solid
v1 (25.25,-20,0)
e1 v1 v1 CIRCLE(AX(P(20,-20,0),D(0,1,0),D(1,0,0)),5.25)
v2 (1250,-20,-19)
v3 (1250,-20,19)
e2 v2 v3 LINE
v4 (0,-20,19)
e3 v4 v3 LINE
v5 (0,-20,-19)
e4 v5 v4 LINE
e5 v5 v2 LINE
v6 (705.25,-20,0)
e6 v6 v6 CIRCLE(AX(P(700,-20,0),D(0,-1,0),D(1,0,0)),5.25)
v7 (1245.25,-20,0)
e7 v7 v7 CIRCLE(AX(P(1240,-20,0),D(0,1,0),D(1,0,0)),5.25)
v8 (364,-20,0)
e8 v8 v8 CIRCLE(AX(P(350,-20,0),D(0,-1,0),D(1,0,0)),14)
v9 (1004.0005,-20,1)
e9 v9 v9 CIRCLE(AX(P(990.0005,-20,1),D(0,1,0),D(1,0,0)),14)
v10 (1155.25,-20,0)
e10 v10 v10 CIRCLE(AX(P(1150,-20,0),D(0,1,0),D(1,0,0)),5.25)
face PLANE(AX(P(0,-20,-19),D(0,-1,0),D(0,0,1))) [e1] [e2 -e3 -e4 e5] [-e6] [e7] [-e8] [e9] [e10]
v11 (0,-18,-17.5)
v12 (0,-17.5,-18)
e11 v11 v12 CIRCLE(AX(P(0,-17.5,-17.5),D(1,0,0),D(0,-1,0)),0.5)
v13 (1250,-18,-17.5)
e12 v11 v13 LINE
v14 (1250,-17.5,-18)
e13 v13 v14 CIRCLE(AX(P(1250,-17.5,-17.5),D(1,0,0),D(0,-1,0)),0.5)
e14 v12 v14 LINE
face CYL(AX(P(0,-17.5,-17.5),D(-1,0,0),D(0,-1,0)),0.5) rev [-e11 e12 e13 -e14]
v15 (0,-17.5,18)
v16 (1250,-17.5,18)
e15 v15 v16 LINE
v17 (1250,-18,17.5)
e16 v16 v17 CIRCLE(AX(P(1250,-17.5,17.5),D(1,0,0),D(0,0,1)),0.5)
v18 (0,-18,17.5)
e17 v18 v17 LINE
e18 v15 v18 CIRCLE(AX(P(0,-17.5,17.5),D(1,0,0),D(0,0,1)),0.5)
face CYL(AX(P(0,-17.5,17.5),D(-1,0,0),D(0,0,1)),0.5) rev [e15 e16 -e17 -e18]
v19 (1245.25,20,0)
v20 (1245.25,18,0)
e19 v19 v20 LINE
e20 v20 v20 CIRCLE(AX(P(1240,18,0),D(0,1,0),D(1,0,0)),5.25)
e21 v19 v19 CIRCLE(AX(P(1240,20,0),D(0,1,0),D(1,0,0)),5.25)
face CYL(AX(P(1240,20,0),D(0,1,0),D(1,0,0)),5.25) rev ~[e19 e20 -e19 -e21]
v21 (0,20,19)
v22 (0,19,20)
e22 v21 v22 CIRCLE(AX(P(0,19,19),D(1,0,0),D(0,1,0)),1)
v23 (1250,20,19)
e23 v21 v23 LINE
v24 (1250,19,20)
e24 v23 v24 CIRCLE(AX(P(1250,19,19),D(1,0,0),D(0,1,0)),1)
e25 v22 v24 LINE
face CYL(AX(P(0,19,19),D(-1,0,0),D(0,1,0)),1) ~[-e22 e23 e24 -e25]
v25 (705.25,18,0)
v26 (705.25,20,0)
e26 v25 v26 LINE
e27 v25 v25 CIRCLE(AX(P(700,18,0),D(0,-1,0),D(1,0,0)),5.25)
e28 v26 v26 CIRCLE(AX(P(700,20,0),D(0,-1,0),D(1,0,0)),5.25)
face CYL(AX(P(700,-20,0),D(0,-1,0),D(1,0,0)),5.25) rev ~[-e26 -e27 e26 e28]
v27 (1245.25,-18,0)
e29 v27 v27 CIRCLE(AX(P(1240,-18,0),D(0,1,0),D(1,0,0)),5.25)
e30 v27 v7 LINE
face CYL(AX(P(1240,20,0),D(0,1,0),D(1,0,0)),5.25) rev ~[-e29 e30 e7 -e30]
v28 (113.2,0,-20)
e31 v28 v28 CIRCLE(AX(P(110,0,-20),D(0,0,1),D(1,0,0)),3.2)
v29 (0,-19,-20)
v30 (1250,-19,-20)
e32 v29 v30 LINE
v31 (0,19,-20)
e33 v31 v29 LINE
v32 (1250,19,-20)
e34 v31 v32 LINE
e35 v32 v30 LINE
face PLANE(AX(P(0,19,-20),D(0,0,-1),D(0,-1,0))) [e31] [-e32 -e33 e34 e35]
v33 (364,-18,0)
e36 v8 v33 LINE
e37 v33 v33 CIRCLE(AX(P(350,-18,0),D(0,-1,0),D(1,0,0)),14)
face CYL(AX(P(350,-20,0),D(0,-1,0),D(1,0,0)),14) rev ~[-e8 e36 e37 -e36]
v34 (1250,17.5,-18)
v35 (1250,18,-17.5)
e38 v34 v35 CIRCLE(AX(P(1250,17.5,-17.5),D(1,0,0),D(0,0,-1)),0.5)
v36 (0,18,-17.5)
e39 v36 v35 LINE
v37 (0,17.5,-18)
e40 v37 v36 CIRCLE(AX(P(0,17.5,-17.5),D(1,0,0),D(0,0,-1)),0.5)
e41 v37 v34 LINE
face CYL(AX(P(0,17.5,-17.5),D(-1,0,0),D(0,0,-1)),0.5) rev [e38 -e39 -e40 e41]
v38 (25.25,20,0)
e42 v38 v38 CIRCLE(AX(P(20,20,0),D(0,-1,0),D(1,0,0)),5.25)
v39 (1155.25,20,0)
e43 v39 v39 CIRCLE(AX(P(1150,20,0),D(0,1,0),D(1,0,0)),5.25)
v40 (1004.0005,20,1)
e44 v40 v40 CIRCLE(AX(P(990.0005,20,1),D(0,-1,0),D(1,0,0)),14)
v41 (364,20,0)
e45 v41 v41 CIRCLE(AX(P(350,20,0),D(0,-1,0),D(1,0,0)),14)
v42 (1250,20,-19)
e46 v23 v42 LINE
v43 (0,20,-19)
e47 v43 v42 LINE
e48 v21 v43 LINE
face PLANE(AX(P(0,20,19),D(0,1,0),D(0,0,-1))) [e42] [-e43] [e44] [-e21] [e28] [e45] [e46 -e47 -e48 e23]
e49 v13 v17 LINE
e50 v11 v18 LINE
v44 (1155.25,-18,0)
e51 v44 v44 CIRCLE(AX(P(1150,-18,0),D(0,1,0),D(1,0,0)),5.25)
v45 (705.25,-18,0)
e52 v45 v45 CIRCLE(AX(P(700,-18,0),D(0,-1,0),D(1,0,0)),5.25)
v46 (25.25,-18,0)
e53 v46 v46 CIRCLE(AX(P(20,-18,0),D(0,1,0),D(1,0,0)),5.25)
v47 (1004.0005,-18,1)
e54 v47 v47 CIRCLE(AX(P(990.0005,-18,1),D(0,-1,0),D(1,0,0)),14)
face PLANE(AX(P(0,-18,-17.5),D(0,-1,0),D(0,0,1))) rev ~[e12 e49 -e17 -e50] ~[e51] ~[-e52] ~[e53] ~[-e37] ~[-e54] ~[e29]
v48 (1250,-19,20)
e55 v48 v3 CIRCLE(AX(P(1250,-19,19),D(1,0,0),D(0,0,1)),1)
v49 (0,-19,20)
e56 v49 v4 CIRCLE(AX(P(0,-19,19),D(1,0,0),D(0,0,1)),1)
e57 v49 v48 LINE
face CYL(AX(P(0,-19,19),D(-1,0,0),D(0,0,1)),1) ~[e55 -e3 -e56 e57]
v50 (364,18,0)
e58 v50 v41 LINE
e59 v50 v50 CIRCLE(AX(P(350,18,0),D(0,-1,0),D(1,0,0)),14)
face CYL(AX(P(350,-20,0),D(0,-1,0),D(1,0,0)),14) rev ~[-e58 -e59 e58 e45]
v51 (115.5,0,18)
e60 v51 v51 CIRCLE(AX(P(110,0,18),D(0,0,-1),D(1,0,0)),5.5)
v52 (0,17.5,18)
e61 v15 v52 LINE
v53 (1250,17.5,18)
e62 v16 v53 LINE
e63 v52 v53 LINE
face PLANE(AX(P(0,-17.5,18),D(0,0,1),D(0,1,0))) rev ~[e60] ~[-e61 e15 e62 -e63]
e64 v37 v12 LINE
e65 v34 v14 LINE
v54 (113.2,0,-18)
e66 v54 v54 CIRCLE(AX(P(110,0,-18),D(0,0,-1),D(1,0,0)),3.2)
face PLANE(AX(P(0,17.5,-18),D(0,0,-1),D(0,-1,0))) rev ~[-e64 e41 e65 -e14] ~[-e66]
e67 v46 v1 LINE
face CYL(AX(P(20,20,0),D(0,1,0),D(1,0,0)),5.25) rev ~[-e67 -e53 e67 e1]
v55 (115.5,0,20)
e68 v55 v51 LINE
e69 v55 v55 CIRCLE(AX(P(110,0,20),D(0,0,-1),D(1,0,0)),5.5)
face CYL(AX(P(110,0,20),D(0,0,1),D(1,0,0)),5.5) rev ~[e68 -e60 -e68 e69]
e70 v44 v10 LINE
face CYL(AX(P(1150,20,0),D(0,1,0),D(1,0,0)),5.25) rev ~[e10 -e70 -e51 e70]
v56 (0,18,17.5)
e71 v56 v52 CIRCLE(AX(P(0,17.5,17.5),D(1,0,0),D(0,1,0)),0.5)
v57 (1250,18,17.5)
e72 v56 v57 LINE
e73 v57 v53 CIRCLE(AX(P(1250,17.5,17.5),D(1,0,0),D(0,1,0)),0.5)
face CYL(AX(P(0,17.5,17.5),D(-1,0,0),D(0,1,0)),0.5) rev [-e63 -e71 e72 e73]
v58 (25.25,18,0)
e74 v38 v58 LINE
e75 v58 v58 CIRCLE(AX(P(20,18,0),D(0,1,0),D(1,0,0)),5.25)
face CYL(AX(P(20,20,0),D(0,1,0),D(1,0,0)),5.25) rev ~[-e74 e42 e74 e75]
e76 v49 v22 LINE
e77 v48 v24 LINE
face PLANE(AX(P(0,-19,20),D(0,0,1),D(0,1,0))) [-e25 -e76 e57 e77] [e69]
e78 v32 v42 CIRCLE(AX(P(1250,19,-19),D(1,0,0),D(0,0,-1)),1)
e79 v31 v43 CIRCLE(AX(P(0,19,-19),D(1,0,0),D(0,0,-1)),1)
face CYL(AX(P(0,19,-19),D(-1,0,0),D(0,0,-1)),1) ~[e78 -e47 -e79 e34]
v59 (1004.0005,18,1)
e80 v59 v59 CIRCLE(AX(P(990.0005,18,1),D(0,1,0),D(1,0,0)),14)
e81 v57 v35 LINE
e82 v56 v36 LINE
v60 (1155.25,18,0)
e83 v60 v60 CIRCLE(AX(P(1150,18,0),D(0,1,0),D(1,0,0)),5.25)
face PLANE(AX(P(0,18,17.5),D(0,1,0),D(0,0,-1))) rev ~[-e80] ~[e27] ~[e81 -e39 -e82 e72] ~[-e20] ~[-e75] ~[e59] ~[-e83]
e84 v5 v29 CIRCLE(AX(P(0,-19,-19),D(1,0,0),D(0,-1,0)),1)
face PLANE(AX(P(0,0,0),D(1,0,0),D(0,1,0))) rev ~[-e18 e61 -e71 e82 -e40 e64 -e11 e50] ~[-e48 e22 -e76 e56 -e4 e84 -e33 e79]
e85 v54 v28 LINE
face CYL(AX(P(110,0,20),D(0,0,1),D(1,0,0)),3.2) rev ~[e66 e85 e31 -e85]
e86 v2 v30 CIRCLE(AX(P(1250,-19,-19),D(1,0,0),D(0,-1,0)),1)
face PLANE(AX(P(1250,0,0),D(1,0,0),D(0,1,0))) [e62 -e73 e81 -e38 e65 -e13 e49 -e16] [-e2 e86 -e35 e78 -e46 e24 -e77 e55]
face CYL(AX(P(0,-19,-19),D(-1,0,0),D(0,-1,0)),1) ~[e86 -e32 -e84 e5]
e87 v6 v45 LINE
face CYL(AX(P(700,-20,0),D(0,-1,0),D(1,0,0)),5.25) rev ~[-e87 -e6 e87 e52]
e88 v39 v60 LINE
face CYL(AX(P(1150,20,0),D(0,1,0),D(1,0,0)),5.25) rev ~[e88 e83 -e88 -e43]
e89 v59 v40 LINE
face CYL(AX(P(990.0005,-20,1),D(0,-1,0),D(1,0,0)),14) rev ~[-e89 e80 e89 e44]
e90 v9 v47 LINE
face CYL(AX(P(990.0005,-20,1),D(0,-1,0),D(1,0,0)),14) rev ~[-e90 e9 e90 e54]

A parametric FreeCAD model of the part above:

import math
import FreeCAD as App
import Part
import Sketcher

doc = App.newDocument("Part")
body = doc.addObject("PartDesign::Body", "Body")

sketch1 = doc.addObject("Sketcher::SketchObject", "Sketch")
body.addObject(sketch1)
sketch1.AttachmentSupport = (doc.YZ_Plane, [""])
sketch1.MapMode = "FlatFace"
sketch1.addGeometry([
    Part.LineSegment(App.Vector(19, 20, 0), App.Vector(-19, 20, 0)),
    Part.ArcOfCircle(Part.Circle(App.Vector(-19, 19, 0), App.Vector(0, 0, 1), 1), math.radians(90), math.radians(180)),
    Part.LineSegment(App.Vector(-20, 19, 0), App.Vector(-20, -19, 0)),
    Part.ArcOfCircle(Part.Circle(App.Vector(-19, -19, 0), App.Vector(0, 0, 1), 1), math.radians(180), math.radians(270)),
    Part.LineSegment(App.Vector(-19, -20, 0), App.Vector(19, -20, 0)),
    Part.ArcOfCircle(Part.Circle(App.Vector(19, -19, 0), App.Vector(0, 0, 1), 1), math.radians(-90), math.radians(0)),
    Part.LineSegment(App.Vector(20, -19, 0), App.Vector(20, 19, 0)),
    Part.ArcOfCircle(Part.Circle(App.Vector(19, 19, 0), App.Vector(0, 0, 1), 1), math.radians(0), math.radians(90)),
    Part.ArcOfCircle(Part.Circle(App.Vector(-17.5, 17.5, 0), App.Vector(0, 0, 1), 0.5), math.radians(90), math.radians(180)),
    Part.LineSegment(App.Vector(-17.5, 18, 0), App.Vector(17.5, 18, 0)),
    Part.ArcOfCircle(Part.Circle(App.Vector(17.5, 17.5, 0), App.Vector(0, 0, 1), 0.5), math.radians(0), math.radians(90)),
    Part.LineSegment(App.Vector(18, 17.5, 0), App.Vector(18, -17.5, 0)),
    Part.ArcOfCircle(Part.Circle(App.Vector(17.5, -17.5, 0), App.Vector(0, 0, 1), 0.5), math.radians(-90), math.radians(0)),
    Part.LineSegment(App.Vector(17.5, -18, 0), App.Vector(-17.5, -18, 0)),
    Part.ArcOfCircle(Part.Circle(App.Vector(-17.5, -17.5, 0), App.Vector(0, 0, 1), 0.5), math.radians(180), math.radians(270)),
    Part.LineSegment(App.Vector(-18, -17.5, 0), App.Vector(-18, 17.5, 0)),
], False)
sketch1.addConstraint([
    Sketcher.Constraint("Tangent", 0, 2, 1, 1),
    Sketcher.Constraint("Tangent", 1, 2, 2, 1),
    Sketcher.Constraint("Tangent", 2, 2, 3, 1),
    Sketcher.Constraint("Tangent", 3, 2, 4, 1),
    Sketcher.Constraint("Tangent", 4, 2, 5, 1),
    Sketcher.Constraint("Tangent", 5, 2, 6, 1),
    Sketcher.Constraint("Tangent", 6, 2, 7, 1),
    Sketcher.Constraint("Tangent", 7, 2, 0, 1),
    Sketcher.Constraint("Tangent", 8, 1, 9, 1),
    Sketcher.Constraint("Tangent", 9, 2, 10, 2),
    Sketcher.Constraint("Tangent", 10, 1, 11, 1),
    Sketcher.Constraint("Tangent", 11, 2, 12, 2),
    Sketcher.Constraint("Tangent", 12, 1, 13, 1),
    Sketcher.Constraint("Tangent", 13, 2, 14, 2),
    Sketcher.Constraint("Tangent", 14, 1, 15, 1),
    Sketcher.Constraint("Tangent", 15, 2, 8, 2),
    Sketcher.Constraint("Horizontal", 0),
    Sketcher.Constraint("Vertical", 2),
    Sketcher.Constraint("Horizontal", 4),
    Sketcher.Constraint("Vertical", 6),
    Sketcher.Constraint("Horizontal", 9),
    Sketcher.Constraint("Vertical", 11),
    Sketcher.Constraint("Horizontal", 13),
    Sketcher.Constraint("Vertical", 15),
    Sketcher.Constraint("Equal", 1, 3),
    Sketcher.Constraint("Equal", 3, 5),
    Sketcher.Constraint("Equal", 5, 7),
    Sketcher.Constraint("Equal", 8, 10),
    Sketcher.Constraint("Equal", 10, 12),
    Sketcher.Constraint("Equal", 12, 14),
    Sketcher.Constraint("Symmetric", 1, 3, 5, 3, -1, 1),
    Sketcher.Constraint("Symmetric", 8, 3, 12, 3, -1, 1),
    Sketcher.Constraint("Equal", 4, 2),
    Sketcher.Constraint("Equal", 13, 11),
    Sketcher.Constraint("Radius", 1, 1.0),
    Sketcher.Constraint("Radius", 8, 0.5),
    Sketcher.Constraint("DistanceY", 8, 1, 1, 3, 1.0),
    Sketcher.Constraint("DistanceX", 0, 2, 0, 1, 38.0),
])
pad1 = doc.addObject("PartDesign::Pad", "Pad")
body.addObject(pad1)
pad1.Profile = sketch1
pad1.Length = 1250

sketch2 = doc.addObject("Sketcher::SketchObject", "Sketch001")
body.addObject(sketch2)
sketch2.AttachmentSupport = (doc.XZ_Plane, [""])
sketch2.MapMode = "FlatFace"
sketch2.AttachmentOffset = App.Placement(App.Vector(0, 0, -20), App.Rotation())
sketch2.addGeometry([
    Part.Circle(App.Vector(1150, 0, 0), App.Vector(0, 0, 1), 5),
    Part.Circle(App.Vector(20, 0, 0), App.Vector(0, 0, 1), 5),
], False)
sketch2.addConstraint([
    Sketcher.Constraint("Equal", 0, 1),
    Sketcher.Constraint("PointOnObject", 0, 3, -1),
    Sketcher.Constraint("PointOnObject", 1, 3, -1),
    Sketcher.Constraint("Diameter", 0, 10.5),
    Sketcher.Constraint("DistanceX", -1, 1, 1, 3, 20.0),
    Sketcher.Constraint("DistanceX", -1, 1, 0, 3, 1150.0),
])
pocket1 = doc.addObject("PartDesign::Pocket", "Pocket")
body.addObject(pocket1)
pocket1.Profile = sketch2
pocket1.Length = 1250
pocket1.Reversed = True

sketch3 = doc.addObject("Sketcher::SketchObject", "Sketch002")
body.addObject(sketch3)
sketch3.AttachmentSupport = (doc.XY_Plane, [""])
sketch3.MapMode = "FlatFace"
sketch3.AttachmentOffset = App.Placement(App.Vector(0, 0, 20), App.Rotation())
sketch3.addGeometry(Part.Circle(App.Vector(110, 0, 0), App.Vector(0, 0, 1), 3.2), False)
sketch3.addConstraint([
    Sketcher.Constraint("PointOnObject", 0, 3, -1),
    Sketcher.Constraint("Diameter", 0, 6.4),
    Sketcher.Constraint("DistanceX", -1, 1, 0, 3, 110.0),
])
pocket2 = doc.addObject("PartDesign::Pocket", "Pocket001")
body.addObject(pocket2)
pocket2.Profile = sketch3
pocket2.Length = 1250

sketch4 = doc.addObject("Sketcher::SketchObject", "Sketch003")
body.addObject(sketch4)
sketch4.AttachmentSupport = (doc.XY_Plane, [""])
sketch4.MapMode = "FlatFace"
sketch4.AttachmentOffset = App.Placement(App.Vector(0, 0, 20), App.Rotation())
sketch4.addGeometry(Part.Circle(App.Vector(110, 0, 0), App.Vector(0, 0, 1), 6), False)
sketch4.addConstraint([
    Sketcher.Constraint("PointOnObject", 0, 3, -1),
    Sketcher.Constraint("Diameter", 0, 11.0),
    Sketcher.Constraint("DistanceX", -1, 1, 0, 3, 110.0),
])
pocket3 = doc.addObject("PartDesign::Pocket", "Pocket002")
body.addObject(pocket3)
pocket3.Profile = sketch4
pocket3.Length = 2

sketch5 = doc.addObject("Sketcher::SketchObject", "Sketch004")
body.addObject(sketch5)
sketch5.AttachmentSupport = (doc.XZ_Plane, [""])
sketch5.MapMode = "FlatFace"
sketch5.AttachmentOffset = App.Placement(App.Vector(0, 0, 20), App.Rotation())
sketch5.addGeometry(Part.Circle(App.Vector(350, 0, 0), App.Vector(0, 0, 1), 14), False)
sketch5.addConstraint([
    Sketcher.Constraint("PointOnObject", 0, 3, -1),
    Sketcher.Constraint("Diameter", 0, 28.0),
    Sketcher.Constraint("DistanceX", -1, 1, 0, 3, 350.0),
])
pocket4 = doc.addObject("PartDesign::Pocket", "Pocket003")
body.addObject(pocket4)
pocket4.Profile = sketch5
pocket4.Length = 40

sketch6 = doc.addObject("Sketcher::SketchObject", "Sketch005")
body.addObject(sketch6)
sketch6.AttachmentSupport = (doc.XZ_Plane, [""])
sketch6.MapMode = "FlatFace"
sketch6.AttachmentOffset = App.Placement(App.Vector(0, 0, -20), App.Rotation())
sketch6.addGeometry(Part.Circle(App.Vector(1240, 0, 0), App.Vector(0, 0, 1), 5), False)
sketch6.addConstraint([
    Sketcher.Constraint("PointOnObject", 0, 3, -1),
    Sketcher.Constraint("Diameter", 0, 10.5),
    Sketcher.Constraint("DistanceX", -1, 1, 0, 3, 1240.0),
])
pocket5 = doc.addObject("PartDesign::Pocket", "Pocket004")
body.addObject(pocket5)
pocket5.Profile = sketch6
pocket5.Type = "ThroughAll"
pocket5.Reversed = True

sketch7 = doc.addObject("Sketcher::SketchObject", "Sketch006")
body.addObject(sketch7)
sketch7.AttachmentSupport = (doc.XZ_Plane, [""])
sketch7.MapMode = "FlatFace"
sketch7.AttachmentOffset = App.Placement(App.Vector(0, 0, 20), App.Rotation())
sketch7.addGeometry(Part.Circle(App.Vector(990, 1, 0), App.Vector(0, 0, 1), 14), False)
sketch7.addConstraint([
    Sketcher.Constraint("Diameter", 0, 28.0),
    Sketcher.Constraint("DistanceY", -1, 1, 0, 3, 1.0),
    Sketcher.Constraint("DistanceX", -1, 1, 0, 3, 990.0005),
])
pocket6 = doc.addObject("PartDesign::Pocket", "Pocket005")
body.addObject(pocket6)
pocket6.Profile = sketch7
pocket6.Type = "ThroughAll"

sketch8 = doc.addObject("Sketcher::SketchObject", "Sketch007")
body.addObject(sketch8)
sketch8.AttachmentSupport = (doc.XZ_Plane, [""])
sketch8.MapMode = "FlatFace"
sketch8.AttachmentOffset = App.Placement(App.Vector(0, 0, 20), App.Rotation())
sketch8.addGeometry(Part.Circle(App.Vector(700, 0, 0), App.Vector(0, 0, 1), 5), False)
sketch8.addConstraint([
    Sketcher.Constraint("PointOnObject", 0, 3, -1),
    Sketcher.Constraint("Diameter", 0, 10.5),
    Sketcher.Constraint("DistanceX", -1, 1, 0, 3, 700.0),
])
pocket7 = doc.addObject("PartDesign::Pocket", "Pocket006")
body.addObject(pocket7)
pocket7.Profile = sketch8
pocket7.Type = "ThroughAll"

doc.recompute()
